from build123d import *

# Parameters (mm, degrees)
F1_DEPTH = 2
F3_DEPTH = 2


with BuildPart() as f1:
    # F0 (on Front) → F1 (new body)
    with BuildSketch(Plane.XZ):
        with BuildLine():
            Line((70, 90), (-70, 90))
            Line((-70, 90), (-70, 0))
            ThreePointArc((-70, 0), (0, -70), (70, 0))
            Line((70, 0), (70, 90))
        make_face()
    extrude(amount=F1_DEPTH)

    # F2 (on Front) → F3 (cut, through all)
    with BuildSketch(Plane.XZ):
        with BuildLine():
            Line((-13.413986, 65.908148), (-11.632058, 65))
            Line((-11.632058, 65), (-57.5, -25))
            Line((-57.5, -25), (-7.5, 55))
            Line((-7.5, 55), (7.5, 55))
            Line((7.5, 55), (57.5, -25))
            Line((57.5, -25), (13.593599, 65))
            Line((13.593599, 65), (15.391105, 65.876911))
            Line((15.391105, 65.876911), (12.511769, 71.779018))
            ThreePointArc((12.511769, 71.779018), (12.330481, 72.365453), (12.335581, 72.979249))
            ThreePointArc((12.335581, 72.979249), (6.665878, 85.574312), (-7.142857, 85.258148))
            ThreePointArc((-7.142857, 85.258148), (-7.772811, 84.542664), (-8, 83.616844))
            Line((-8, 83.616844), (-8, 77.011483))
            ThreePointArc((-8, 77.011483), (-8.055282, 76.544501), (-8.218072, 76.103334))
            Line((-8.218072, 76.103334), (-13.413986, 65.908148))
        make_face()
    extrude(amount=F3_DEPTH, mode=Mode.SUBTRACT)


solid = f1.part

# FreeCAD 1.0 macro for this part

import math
import FreeCAD as App
import Part
import Sketcher
from FreeCAD import Vector

doc = App.newDocument("Part")
body = doc.addObject("PartDesign::Body", "Body")

sketch1 = body.newObject("Sketcher::SketchObject", "Sketch")
sketch1.AttachmentSupport = (doc.getObject("XZ_Plane"), [""])
sketch1.MapMode = "FlatFace"
sketch1.addGeometry([
    Part.LineSegment(Vector(70, 90, 0), Vector(-70, 90, 0)),
    Part.LineSegment(Vector(-70, 90, 0), Vector(-70, 0, 0)),
    Part.ArcOfCircle(Part.Circle(Vector(0, 0, 0), Vector(0, 0, 1), 70), math.radians(180), math.radians(360)),
    Part.LineSegment(Vector(70, 0, 0), Vector(70, 90, 0)),
], False)
sketch1.addConstraint([
    Sketcher.Constraint("Coincident", 0, 2, 1, 1),
    Sketcher.Constraint("Tangent", 1, 2, 2, 1),
    Sketcher.Constraint("Tangent", 2, 2, 3, 1),
    Sketcher.Constraint("Coincident", 3, 2, 0, 1),
    Sketcher.Constraint("Horizontal", 0),
    Sketcher.Constraint("Vertical", 1),
    Sketcher.Constraint("Vertical", 3),
    Sketcher.Constraint("Coincident", 2, 3, -1, 1),
    Sketcher.Constraint("Radius", 2, 70.0),
    Sketcher.Constraint("DistanceY", 1, 2, 1, 1, 90.0),
])
pad1 = body.newObject("PartDesign::Pad", "Pad")
pad1.Profile = sketch1
pad1.Length = 2

sketch2 = body.newObject("Sketcher::SketchObject", "Sketch001")
sketch2.AttachmentSupport = (doc.getObject("XZ_Plane"), [""])
sketch2.MapMode = "FlatFace"
sketch2.addGeometry([
    Part.LineSegment(Vector(-13.4, 65.9, 0), Vector(-11.6, 65, 0)),
    Part.LineSegment(Vector(-11.6, 65, 0), Vector(-57.5, -25, 0)),
    Part.LineSegment(Vector(-57.5, -25, 0), Vector(-7.5, 55, 0)),
    Part.LineSegment(Vector(-7.5, 55, 0), Vector(7.5, 55, 0)),
    Part.LineSegment(Vector(7.5, 55, 0), Vector(57.5, -25, 0)),
    Part.LineSegment(Vector(57.5, -25, 0), Vector(13.6, 65, 0)),
    Part.LineSegment(Vector(13.6, 65, 0), Vector(15.4, 65.9, 0)),
    Part.LineSegment(Vector(15.4, 65.9, 0), Vector(12.5, 71.8, 0)),
    Part.ArcOfCircle(Part.Circle(Vector(14.3, 72.7, 0), Vector(0, 0, 1), 2), math.radians(171), math.radians(206)),
    Part.ArcOfCircle(Part.Circle(Vector(0, 75, 0), Vector(0, 0, 1), 12.5), math.radians(-9), math.radians(125)),
    Part.ArcOfCircle(Part.Circle(Vector(-6, 83.6, 0), Vector(0, 0, 1), 2), math.radians(125), math.radians(180)),
    Part.LineSegment(Vector(-8, 83.6, 0), Vector(-8, 77, 0)),
    Part.ArcOfCircle(Part.Circle(Vector(-10, 77, 0), Vector(0, 0, 1), 2), math.radians(-27), math.radians(0)),
    Part.LineSegment(Vector(-8.2, 76.1, 0), Vector(-13.4, 65.9, 0)),
], False)
sketch2.addConstraint([
    Sketcher.Constraint("Coincident", 0, 2, 1, 1),
    Sketcher.Constraint("Coincident", 1, 2, 2, 1),
    Sketcher.Constraint("Coincident", 2, 2, 3, 1),
    Sketcher.Constraint("Coincident", 3, 2, 4, 1),
    Sketcher.Constraint("Coincident", 4, 2, 5, 1),
    Sketcher.Constraint("Coincident", 5, 2, 6, 1),
    Sketcher.Constraint("Coincident", 6, 2, 7, 1),
    Sketcher.Constraint("Tangent", 7, 2, 8, 2),
    Sketcher.Constraint("Tangent", 8, 1, 9, 1),
    Sketcher.Constraint("Tangent", 9, 2, 10, 1),
    Sketcher.Constraint("Tangent", 10, 2, 11, 1),
    Sketcher.Constraint("Tangent", 11, 2, 12, 2),
    Sketcher.Constraint("Tangent", 12, 1, 13, 1),
    Sketcher.Constraint("Coincident", 13, 2, 0, 1),
    Sketcher.Constraint("Horizontal", 3),
    Sketcher.Constraint("Vertical", 11),
    Sketcher.Constraint("Symmetric", 1, 2, 4, 2, -2),
    Sketcher.Constraint("PointOnObject", 9, 3, -2),
    Sketcher.Constraint("Perpendicular", 0, 1),
    Sketcher.Constraint("Perpendicular", 5, 6),
    Sketcher.Constraint("Perpendicular", 6, 7),
    Sketcher.Constraint("Parallel", 1, 13),
    Sketcher.Constraint("Horizontal", 0, 2, 5, 2),
    Sketcher.Constraint("Equal", 2, 4),
    Sketcher.Constraint("Equal", 0, 6),
    Sketcher.Constraint("Radius", 8, 2.000002),
    Sketcher.Constraint("Radius", 10, 1.999998),
    Sketcher.Constraint("Radius", 9, 12.5),
    Sketcher.Constraint("DistanceX", 3, 1, 3, 2, 15.0),
    Sketcher.Constraint("Distance", 0, 2.0),
    Sketcher.Constraint("DistanceY", -1, 1, 9, 3, 75.0),
    Sketcher.Constraint("DistanceX", 10, 3, -1, 1, 6.000002),
    Sketcher.Constraint("DistanceY", -1, 1, 0, 2, 65.0),
    Sketcher.Constraint("DistanceY", 1, 2, -1, 1, 25.0),
    Sketcher.Constraint("DistanceY", -1, 1, 2, 2, 55.0),
    Sketcher.Constraint("DistanceX", 3, 2, 4, 2, 50.0),
    Sketcher.Constraint("Radius", 12, 2.000007),
    Sketcher.Constraint("DistanceY", 11, 2, 11, 1, 6.605361),
    Sketcher.Constraint("DistanceX", -1, 1, 5, 2, 13.593599),
])
pocket1 = body.newObject("PartDesign::Pocket", "Pocket")
pocket1.Profile = sketch2
pocket1.Type = "ThroughAll"
pocket1.Reversed = True

doc.recompute()
